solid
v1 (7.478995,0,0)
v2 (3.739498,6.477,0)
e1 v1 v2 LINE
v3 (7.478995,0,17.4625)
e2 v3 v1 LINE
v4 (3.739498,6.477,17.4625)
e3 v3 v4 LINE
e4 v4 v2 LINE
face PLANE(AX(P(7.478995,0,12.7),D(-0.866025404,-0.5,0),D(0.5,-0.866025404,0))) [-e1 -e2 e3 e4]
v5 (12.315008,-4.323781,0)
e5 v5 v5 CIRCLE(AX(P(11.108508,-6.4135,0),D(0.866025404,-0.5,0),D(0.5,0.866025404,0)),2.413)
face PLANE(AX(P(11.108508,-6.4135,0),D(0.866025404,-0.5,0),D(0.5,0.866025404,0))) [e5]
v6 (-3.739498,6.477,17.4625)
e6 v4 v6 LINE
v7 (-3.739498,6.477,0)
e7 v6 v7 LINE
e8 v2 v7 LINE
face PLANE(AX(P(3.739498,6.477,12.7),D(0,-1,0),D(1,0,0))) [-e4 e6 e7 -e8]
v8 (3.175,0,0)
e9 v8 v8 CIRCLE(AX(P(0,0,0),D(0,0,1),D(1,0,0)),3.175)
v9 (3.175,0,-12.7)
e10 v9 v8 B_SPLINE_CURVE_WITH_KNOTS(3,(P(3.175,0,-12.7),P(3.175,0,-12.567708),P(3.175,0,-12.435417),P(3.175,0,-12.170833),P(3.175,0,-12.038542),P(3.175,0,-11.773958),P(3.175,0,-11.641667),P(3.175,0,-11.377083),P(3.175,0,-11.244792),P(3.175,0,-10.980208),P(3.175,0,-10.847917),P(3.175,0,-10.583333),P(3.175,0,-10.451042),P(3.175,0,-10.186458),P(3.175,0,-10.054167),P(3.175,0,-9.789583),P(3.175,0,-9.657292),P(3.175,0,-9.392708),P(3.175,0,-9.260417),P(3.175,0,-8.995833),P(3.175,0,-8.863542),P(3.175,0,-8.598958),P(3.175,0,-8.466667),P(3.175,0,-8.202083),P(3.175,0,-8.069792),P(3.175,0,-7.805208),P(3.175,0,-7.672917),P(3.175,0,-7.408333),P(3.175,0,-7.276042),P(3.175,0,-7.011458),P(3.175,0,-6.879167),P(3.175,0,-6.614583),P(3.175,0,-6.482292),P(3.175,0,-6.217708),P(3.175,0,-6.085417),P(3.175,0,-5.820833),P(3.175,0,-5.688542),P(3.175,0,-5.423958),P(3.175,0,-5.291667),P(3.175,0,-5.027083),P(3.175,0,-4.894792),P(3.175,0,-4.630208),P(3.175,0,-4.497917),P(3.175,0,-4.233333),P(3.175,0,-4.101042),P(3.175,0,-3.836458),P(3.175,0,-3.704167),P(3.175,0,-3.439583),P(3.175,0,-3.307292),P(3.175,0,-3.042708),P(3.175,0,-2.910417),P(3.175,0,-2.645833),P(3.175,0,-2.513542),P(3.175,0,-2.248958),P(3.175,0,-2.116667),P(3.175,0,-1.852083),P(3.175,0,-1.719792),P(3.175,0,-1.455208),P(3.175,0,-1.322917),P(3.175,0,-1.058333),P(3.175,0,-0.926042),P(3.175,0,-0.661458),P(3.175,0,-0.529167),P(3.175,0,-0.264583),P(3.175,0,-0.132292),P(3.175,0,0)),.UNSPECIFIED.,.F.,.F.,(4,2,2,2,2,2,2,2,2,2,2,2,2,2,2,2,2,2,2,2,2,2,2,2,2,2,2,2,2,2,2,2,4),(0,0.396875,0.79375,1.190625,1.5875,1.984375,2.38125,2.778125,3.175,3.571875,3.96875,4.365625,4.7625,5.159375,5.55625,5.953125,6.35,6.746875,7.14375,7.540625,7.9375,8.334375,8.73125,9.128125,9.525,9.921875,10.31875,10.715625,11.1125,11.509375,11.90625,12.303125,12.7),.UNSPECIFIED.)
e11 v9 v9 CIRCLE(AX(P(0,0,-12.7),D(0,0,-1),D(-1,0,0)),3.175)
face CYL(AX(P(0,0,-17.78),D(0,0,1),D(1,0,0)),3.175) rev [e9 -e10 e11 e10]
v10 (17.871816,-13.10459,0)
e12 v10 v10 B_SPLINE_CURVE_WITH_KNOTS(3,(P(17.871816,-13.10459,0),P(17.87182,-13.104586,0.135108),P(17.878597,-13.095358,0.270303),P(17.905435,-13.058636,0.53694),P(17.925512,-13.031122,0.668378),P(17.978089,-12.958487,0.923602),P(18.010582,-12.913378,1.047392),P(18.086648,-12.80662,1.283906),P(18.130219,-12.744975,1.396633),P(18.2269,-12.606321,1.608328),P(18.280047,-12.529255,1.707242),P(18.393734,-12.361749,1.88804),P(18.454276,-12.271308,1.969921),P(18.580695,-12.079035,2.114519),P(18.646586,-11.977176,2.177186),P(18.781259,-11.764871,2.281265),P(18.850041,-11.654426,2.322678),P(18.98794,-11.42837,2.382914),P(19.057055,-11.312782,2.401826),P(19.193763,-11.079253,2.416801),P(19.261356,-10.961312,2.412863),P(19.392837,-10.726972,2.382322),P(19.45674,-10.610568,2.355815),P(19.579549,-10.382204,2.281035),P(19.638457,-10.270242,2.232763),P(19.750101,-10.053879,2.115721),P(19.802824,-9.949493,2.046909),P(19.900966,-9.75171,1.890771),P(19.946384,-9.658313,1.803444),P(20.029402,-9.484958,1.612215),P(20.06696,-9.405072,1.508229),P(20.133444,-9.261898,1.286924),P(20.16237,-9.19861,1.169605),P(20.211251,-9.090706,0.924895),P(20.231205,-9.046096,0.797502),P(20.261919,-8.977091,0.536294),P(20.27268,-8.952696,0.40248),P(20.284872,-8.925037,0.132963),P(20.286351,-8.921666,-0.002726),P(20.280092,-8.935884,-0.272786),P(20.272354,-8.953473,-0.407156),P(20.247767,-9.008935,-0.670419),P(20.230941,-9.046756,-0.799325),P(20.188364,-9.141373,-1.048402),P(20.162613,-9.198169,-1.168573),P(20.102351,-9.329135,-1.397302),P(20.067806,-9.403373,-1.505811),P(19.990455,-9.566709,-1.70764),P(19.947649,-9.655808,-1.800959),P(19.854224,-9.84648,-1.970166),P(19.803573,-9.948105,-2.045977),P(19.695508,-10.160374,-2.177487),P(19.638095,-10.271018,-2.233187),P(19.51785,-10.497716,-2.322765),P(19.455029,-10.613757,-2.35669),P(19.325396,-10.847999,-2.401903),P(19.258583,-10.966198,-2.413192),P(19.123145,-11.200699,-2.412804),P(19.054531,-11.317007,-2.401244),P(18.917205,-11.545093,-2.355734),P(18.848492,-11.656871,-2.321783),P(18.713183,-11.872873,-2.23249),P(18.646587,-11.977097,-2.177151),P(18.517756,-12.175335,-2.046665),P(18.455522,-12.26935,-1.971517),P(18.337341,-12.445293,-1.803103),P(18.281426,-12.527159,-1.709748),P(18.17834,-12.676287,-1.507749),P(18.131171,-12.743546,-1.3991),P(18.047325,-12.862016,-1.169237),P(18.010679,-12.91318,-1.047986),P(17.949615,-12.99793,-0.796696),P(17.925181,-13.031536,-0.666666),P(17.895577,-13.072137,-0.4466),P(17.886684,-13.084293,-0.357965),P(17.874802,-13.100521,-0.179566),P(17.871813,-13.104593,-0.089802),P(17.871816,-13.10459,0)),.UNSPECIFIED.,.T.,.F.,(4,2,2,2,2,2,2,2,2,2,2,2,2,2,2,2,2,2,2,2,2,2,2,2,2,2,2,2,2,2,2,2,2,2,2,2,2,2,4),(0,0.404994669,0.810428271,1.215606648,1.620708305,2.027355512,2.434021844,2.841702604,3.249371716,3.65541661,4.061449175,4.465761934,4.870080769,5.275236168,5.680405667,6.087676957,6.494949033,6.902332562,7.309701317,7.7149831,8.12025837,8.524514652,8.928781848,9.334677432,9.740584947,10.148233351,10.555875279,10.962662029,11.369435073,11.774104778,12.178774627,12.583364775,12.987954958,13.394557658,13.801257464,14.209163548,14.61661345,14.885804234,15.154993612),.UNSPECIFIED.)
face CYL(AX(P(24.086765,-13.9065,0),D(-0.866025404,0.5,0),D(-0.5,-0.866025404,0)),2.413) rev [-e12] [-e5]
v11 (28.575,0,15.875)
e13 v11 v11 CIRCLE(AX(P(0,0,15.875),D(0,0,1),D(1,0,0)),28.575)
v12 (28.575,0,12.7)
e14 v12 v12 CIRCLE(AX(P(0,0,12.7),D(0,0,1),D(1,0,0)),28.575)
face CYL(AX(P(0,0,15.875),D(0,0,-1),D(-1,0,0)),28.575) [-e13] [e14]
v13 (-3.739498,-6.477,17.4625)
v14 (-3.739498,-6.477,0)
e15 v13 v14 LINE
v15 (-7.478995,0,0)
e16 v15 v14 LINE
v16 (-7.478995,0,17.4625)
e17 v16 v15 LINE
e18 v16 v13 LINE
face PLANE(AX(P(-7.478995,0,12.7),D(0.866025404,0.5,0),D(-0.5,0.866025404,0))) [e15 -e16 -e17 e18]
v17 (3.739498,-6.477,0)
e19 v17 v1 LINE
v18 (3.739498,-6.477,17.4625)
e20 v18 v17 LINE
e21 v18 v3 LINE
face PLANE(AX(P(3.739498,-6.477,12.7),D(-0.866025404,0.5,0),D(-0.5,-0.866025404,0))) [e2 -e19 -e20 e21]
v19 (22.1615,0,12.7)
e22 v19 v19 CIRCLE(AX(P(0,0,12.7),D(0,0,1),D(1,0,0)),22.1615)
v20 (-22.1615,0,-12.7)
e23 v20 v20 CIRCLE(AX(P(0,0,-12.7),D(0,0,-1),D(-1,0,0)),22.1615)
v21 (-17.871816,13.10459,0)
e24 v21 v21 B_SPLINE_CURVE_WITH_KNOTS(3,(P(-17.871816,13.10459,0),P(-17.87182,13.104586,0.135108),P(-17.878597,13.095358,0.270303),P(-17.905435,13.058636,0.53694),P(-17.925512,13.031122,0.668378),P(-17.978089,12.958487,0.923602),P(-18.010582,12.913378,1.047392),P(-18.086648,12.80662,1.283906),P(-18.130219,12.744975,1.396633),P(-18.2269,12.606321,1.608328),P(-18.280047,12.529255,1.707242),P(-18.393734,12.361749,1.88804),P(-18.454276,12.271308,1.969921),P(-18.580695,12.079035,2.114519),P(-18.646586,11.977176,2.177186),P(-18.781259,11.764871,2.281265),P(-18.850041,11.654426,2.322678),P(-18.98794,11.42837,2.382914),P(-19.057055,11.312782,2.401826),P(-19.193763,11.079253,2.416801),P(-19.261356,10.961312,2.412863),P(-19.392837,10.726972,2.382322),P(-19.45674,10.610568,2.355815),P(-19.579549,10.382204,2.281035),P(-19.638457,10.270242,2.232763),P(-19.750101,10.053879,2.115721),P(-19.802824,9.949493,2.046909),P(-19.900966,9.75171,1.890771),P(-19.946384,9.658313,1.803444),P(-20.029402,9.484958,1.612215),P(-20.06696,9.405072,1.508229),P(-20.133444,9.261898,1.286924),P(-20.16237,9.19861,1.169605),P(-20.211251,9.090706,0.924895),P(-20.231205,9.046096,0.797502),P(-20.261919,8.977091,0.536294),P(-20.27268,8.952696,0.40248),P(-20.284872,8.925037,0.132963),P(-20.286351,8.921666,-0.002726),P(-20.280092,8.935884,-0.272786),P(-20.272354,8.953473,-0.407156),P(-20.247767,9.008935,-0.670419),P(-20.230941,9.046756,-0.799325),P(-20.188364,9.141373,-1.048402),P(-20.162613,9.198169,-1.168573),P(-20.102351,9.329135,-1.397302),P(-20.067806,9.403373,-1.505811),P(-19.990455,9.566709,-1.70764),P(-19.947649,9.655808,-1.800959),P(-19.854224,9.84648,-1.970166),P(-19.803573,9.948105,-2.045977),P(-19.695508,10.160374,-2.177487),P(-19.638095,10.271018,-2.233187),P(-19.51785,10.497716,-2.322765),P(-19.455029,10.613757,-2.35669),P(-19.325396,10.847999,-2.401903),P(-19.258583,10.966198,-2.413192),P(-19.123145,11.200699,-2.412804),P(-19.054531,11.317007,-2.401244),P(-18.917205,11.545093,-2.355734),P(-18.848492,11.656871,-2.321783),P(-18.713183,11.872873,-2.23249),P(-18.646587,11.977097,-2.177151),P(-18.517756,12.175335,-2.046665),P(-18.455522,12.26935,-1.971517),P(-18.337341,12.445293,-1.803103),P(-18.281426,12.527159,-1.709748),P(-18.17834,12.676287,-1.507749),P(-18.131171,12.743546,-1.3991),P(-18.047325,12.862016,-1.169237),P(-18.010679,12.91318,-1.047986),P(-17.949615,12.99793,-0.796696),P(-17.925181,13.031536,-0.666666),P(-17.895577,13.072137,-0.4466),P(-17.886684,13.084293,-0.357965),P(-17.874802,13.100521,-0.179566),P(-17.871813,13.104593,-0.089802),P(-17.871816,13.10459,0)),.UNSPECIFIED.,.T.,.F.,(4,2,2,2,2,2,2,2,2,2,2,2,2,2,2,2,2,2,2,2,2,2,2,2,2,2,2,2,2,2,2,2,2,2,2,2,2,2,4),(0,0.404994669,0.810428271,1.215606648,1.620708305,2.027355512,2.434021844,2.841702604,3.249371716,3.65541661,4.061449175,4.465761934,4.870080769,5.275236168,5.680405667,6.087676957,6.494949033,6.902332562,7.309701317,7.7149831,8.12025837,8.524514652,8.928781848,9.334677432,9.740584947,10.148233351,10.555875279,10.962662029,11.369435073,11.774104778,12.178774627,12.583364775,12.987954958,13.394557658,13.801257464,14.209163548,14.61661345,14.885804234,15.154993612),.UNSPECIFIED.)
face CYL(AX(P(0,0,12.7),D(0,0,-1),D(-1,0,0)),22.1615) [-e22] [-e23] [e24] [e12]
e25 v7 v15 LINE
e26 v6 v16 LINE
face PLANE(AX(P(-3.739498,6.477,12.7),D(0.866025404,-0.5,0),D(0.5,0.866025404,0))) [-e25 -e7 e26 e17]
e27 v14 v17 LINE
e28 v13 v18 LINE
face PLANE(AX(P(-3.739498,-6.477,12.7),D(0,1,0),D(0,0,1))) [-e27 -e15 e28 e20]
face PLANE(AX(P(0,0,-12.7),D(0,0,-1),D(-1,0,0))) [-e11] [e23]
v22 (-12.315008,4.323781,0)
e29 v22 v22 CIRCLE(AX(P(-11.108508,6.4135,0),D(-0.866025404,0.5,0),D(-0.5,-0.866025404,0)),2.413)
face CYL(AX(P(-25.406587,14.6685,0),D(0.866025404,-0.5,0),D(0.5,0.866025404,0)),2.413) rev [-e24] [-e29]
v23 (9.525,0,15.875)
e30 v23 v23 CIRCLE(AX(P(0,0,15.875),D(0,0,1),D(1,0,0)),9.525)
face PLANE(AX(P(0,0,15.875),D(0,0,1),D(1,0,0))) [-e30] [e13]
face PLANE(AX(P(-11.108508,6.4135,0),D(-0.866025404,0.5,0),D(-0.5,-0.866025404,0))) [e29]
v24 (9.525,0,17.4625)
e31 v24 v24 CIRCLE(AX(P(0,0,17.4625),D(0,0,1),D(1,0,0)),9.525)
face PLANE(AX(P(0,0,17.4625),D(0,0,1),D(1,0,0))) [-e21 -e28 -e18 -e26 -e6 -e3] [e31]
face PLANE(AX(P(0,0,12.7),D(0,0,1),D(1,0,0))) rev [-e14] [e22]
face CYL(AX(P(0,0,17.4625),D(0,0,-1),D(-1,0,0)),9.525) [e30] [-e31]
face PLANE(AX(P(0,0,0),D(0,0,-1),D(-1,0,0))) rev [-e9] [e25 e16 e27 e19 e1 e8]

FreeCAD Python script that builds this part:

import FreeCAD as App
import Part
import Sketcher
Q = App.Units.Quantity


def add_polygon(sketch, points):
    """Adds a closed chain of lines whose ends are joined by coincident constraints."""
    first, n = sketch.GeometryCount, len(points)
    for a, b in zip(points, points[1:] + points[:1]):
        sketch.addGeometry(Part.LineSegment(App.Vector(*a, 0), App.Vector(*b, 0)), False)
    for i in range(n):
        sketch.addConstraint(Sketcher.Constraint("Coincident", first + i, 2, first + (i + 1) % n, 1))

doc = App.newDocument("Part")
params = doc.addObject("Spreadsheet::Sheet", "Params")
for row, (alias, value) in enumerate([
    ("sketch1_diameter", "1.745 in"),
    ("pad1_length", "0.5 in"),
    ("sketch2_diameter", "2.25 in"),
    ("pad2_length", "0.125 in"),
    ("sketch3_diameter", "1.745 in"),
    ("pad3_length", "0.5 in"),
    ("sketch4_diameter", "0.75 in"),
    ("pad4_length", "0.0625 in"),
    ("sketch5_diameter", "0.25 in"),
    ("pocket1_length", "0.7 in"),
    ("sketch6_diameter", "0.19 in"),
    ("pocket2_length", "0.84 in"),
    ("sketch7_diameter", "0.19 in"),
    ("pocket3_length", "0.9 in"),
    ("sketch8_diameter", "0.19 in"),
    ("pad5_length", "0.25 in"),
    ("sketch9_diameter", "0.19 in"),
    ("pad6_length", "0.25 in"),
], start=1):
    params.set(f"A{row}", alias)
    params.set(f"B{row}", "=" + value)
    params.setAlias(f"B{row}", alias)

body = doc.addObject("PartDesign::Body", "Body")

# Sketch on XY plane
sketch1 = body.newObject("Sketcher::SketchObject", "Sketch")
sketch1.AttachmentSupport = (doc.getObject("XY_Plane"), [""])
sketch1.MapMode = "FlatFace"
sketch1.addGeometry(Part.Circle(App.Vector(0, 0, 0), App.Vector(0, 0, 1), 22), False)  # 0
add_polygon(sketch1, [(4, 6), (7, 0), (4, -6), (-4, -6), (-7, 0), (-4, 6)])  # lines 1-6
sketch1.addConstraint(Sketcher.Constraint("Horizontal", 3))
sketch1.addConstraint(Sketcher.Constraint("Horizontal", 6))
sketch1.addConstraint(Sketcher.Constraint("Coincident", 0, 3, -1, 1))
sketch1.addConstraint(Sketcher.Constraint("Symmetric", 1, 2, 4, 2, -1, 1))
sketch1.addConstraint(Sketcher.Constraint("Symmetric", 2, 2, 5, 2, -1, 1))
sketch1.addConstraint(Sketcher.Constraint("PointOnObject", 1, 2, -1))
sketch1.addConstraint(Sketcher.Constraint("Parallel", 1, 4))
sketch1.addConstraint(Sketcher.Constraint("Vertical", 3, 2, 5, 2))
sketch1.addConstraint(Sketcher.Constraint("Diameter", 0, Q("1.745 in")))
sketch1.addConstraint(Sketcher.Constraint("Angle", 1, Q("-60 deg")))
sketch1.addConstraint(Sketcher.Constraint("DistanceY", 3, 2, 5, 2, Q("0.51 in")))
sketch1.addConstraint(Sketcher.Constraint("DistanceX", 3, 2, 3, 1, 7.478995))
sketch1.setExpression("Constraints[14]", "Params.sketch1_diameter")
pad1 = body.newObject("PartDesign::Pad", "Pad")
pad1.Profile = sketch1
pad1.setExpression("Length", "Params.pad1_length")

# Sketch on XY plane
sketch2 = body.newObject("Sketcher::SketchObject", "Sketch001")
sketch2.AttachmentSupport = (doc.getObject("XY_Plane"), [""])
sketch2.MapMode = "FlatFace"
sketch2.AttachmentOffset = App.Placement(App.Vector(0, 0, 0.5 * 25.4), App.Rotation())
sketch2.addGeometry(Part.Circle(App.Vector(0, 0, 0), App.Vector(0, 0, 1), 29), False)  # 0
add_polygon(sketch2, [(4, 6), (7, 0), (4, -6), (-4, -6), (-7, 0), (-4, 6)])  # lines 1-6
sketch2.addConstraint(Sketcher.Constraint("Horizontal", 3))
sketch2.addConstraint(Sketcher.Constraint("Horizontal", 6))
sketch2.addConstraint(Sketcher.Constraint("Coincident", 0, 3, -1, 1))
sketch2.addConstraint(Sketcher.Constraint("Symmetric", 1, 2, 4, 2, -1, 1))
sketch2.addConstraint(Sketcher.Constraint("Symmetric", 2, 2, 5, 2, -1, 1))
sketch2.addConstraint(Sketcher.Constraint("PointOnObject", 1, 2, -1))
sketch2.addConstraint(Sketcher.Constraint("Parallel", 1, 4))
sketch2.addConstraint(Sketcher.Constraint("Vertical", 3, 2, 5, 2))
sketch2.addConstraint(Sketcher.Constraint("Diameter", 0, Q("2.25 in")))
sketch2.addConstraint(Sketcher.Constraint("Angle", 1, Q("-60 deg")))
sketch2.addConstraint(Sketcher.Constraint("DistanceY", 3, 2, 5, 2, Q("0.51 in")))
sketch2.addConstraint(Sketcher.Constraint("DistanceX", 3, 2, 3, 1, 7.478995))
sketch2.setExpression("Constraints[14]", "Params.sketch2_diameter")
pad2 = body.newObject("PartDesign::Pad", "Pad001")
pad2.Profile = sketch2
pad2.setExpression("Length", "Params.pad2_length")

# Sketch on XY plane
sketch3 = body.newObject("Sketcher::SketchObject", "Sketch002")
sketch3.AttachmentSupport = (doc.getObject("XY_Plane"), [""])
sketch3.MapMode = "FlatFace"
sketch3.AttachmentOffset = App.Placement(App.Vector(0, 0, -0.5 * 25.4), App.Rotation())
sketch3.addGeometry(Part.Circle(App.Vector(0, 0, 0), App.Vector(0, 0, 1), 22), False)
sketch3.addConstraint(Sketcher.Constraint("Coincident", 0, 3, -1, 1))
sketch3.addConstraint(Sketcher.Constraint("Diameter", 0, Q("1.745 in")))
sketch3.setExpression("Constraints[1]", "Params.sketch3_diameter")
pad3 = body.newObject("PartDesign::Pad", "Pad002")
pad3.Profile = sketch3
pad3.setExpression("Length", "Params.pad3_length")

# Sketch on XY plane
sketch4 = body.newObject("Sketcher::SketchObject", "Sketch003")
sketch4.AttachmentSupport = (doc.getObject("XY_Plane"), [""])
sketch4.MapMode = "FlatFace"
sketch4.AttachmentOffset = App.Placement(App.Vector(0, 0, 0.625 * 25.4), App.Rotation())
sketch4.addGeometry(Part.Circle(App.Vector(0, 0, 0), App.Vector(0, 0, 1), 10), False)  # 0
add_polygon(sketch4, [(4, 6), (7, 0), (4, -6), (-4, -6), (-7, 0), (-4, 6)])  # lines 1-6
sketch4.addConstraint(Sketcher.Constraint("Horizontal", 3))
sketch4.addConstraint(Sketcher.Constraint("Horizontal", 6))
sketch4.addConstraint(Sketcher.Constraint("Coincident", 0, 3, -1, 1))
sketch4.addConstraint(Sketcher.Constraint("Symmetric", 1, 2, 4, 2, -1, 1))
sketch4.addConstraint(Sketcher.Constraint("Symmetric", 2, 2, 5, 2, -1, 1))
sketch4.addConstraint(Sketcher.Constraint("PointOnObject", 1, 2, -1))
sketch4.addConstraint(Sketcher.Constraint("Parallel", 1, 4))
sketch4.addConstraint(Sketcher.Constraint("Vertical", 3, 2, 5, 2))
sketch4.addConstraint(Sketcher.Constraint("Diameter", 0, Q("0.75 in")))
sketch4.addConstraint(Sketcher.Constraint("Angle", 1, Q("-60 deg")))
sketch4.addConstraint(Sketcher.Constraint("DistanceY", 3, 2, 5, 2, Q("0.51 in")))
sketch4.addConstraint(Sketcher.Constraint("DistanceX", 3, 2, 3, 1, 7.478995))
sketch4.setExpression("Constraints[14]", "Params.sketch4_diameter")
pad4 = body.newObject("PartDesign::Pad", "Pad003")
pad4.Profile = sketch4
pad4.setExpression("Length", "Params.pad4_length")

# Sketch on XY plane
sketch5 = body.newObject("Sketcher::SketchObject", "Sketch004")
sketch5.AttachmentSupport = (doc.getObject("XY_Plane"), [""])
sketch5.MapMode = "FlatFace"
sketch5.addGeometry(Part.Circle(App.Vector(0, 0, 0), App.Vector(0, 0, 1), 3.2), False)
sketch5.addConstraint(Sketcher.Constraint("Coincident", 0, 3, -1, 1))
sketch5.addConstraint(Sketcher.Constraint("Diameter", 0, Q("0.25 in")))
sketch5.setExpression("Constraints[1]", "Params.sketch5_diameter")
pocket1 = body.newObject("PartDesign::Pocket", "Pocket")
pocket1.Profile = sketch5
pocket1.setExpression("Length", "Params.pocket1_length")

# Sketch on an angled plane
sketch6 = body.newObject("Sketcher::SketchObject", "Sketch005")
sketch6.Placement = App.Placement(App.Vector(5.609247, -3.2385, 0), App.Rotation(App.Vector(0, 0, 1), App.Vector(0.5, 0.866025404, 0), App.Vector(-0.866025404, 0.5, 0), "ZXY"))
sketch6.addGeometry(Part.Circle(App.Vector(0, 0, 0), App.Vector(0, 0, 1), 2.4), False)
sketch6.addConstraint(Sketcher.Constraint("Coincident", 0, 3, -1, 1))
sketch6.addConstraint(Sketcher.Constraint("Diameter", 0, Q("0.19 in")))
sketch6.setExpression("Constraints[1]", "Params.sketch6_diameter")
pocket2 = body.newObject("PartDesign::Pocket", "Pocket001")
pocket2.Profile = sketch6
pocket2.setExpression("Length", "Params.pocket2_length")

# Sketch on an angled plane
sketch7 = body.newObject("Sketcher::SketchObject", "Sketch006")
sketch7.Placement = App.Placement(App.Vector(-25.406587, 14.6685, 0), App.Rotation(App.Vector(0, 0, -1), App.Vector(0.5, 0.866025404, 0), App.Vector(0.866025404, -0.5, 0), "ZXY"))
sketch7.addGeometry(Part.Circle(App.Vector(0, 0, 0), App.Vector(0, 0, 1), 2.4), False)
sketch7.addConstraint(Sketcher.Constraint("Coincident", 0, 3, -1, 1))
sketch7.addConstraint(Sketcher.Constraint("Diameter", 0, Q("0.19 in")))
sketch7.setExpression("Constraints[1]", "Params.sketch7_diameter")
pocket3 = body.newObject("PartDesign::Pocket", "Pocket002")
pocket3.Profile = sketch7
pocket3.setExpression("Length", "Params.pocket3_length")
pocket3.Reversed = True

# Sketch on an angled plane
sketch8 = body.newObject("Sketcher::SketchObject", "Sketch007")
sketch8.Placement = App.Placement(App.Vector(-11.108508, 6.4135, 0), App.Rotation(App.Vector(0, 0, 1), App.Vector(0.5, 0.866025404, 0), App.Vector(-0.866025404, 0.5, 0), "ZXY"))
sketch8.addGeometry(Part.Circle(App.Vector(0, 0, 0), App.Vector(0, 0, 1), 2.4), False)
sketch8.addConstraint(Sketcher.Constraint("Coincident", 0, 3, -1, 1))
sketch8.addConstraint(Sketcher.Constraint("Diameter", 0, Q("0.19 in")))
sketch8.setExpression("Constraints[1]", "Params.sketch8_diameter")
pad5 = body.newObject("PartDesign::Pad", "Pad004")
pad5.Profile = sketch8
pad5.setExpression("Length", "Params.pad5_length")
pad5.Reversed = True

# Sketch on an angled plane
sketch9 = body.newObject("Sketcher::SketchObject", "Sketch008")
sketch9.Placement = App.Placement(App.Vector(5.609247, -3.2385, 0), App.Rotation(App.Vector(0, 0, -1), App.Vector(0.5, 0.866025404, 0), App.Vector(0.866025404, -0.5, 0), "ZXY"))
sketch9.addGeometry(Part.Circle(App.Vector(0, 0, 0), App.Vector(0, 0, 1), 2.4), False)
sketch9.addConstraint(Sketcher.Constraint("Coincident", 0, 3, -1, 1))
sketch9.addConstraint(Sketcher.Constraint("Diameter", 0, Q("0.19 in")))
sketch9.setExpression("Constraints[1]", "Params.sketch9_diameter")
pad6 = body.newObject("PartDesign::Pad", "Pad005")
pad6.Profile = sketch9
pad6.setExpression("Length", "Params.pad6_length")

doc.recompute()
